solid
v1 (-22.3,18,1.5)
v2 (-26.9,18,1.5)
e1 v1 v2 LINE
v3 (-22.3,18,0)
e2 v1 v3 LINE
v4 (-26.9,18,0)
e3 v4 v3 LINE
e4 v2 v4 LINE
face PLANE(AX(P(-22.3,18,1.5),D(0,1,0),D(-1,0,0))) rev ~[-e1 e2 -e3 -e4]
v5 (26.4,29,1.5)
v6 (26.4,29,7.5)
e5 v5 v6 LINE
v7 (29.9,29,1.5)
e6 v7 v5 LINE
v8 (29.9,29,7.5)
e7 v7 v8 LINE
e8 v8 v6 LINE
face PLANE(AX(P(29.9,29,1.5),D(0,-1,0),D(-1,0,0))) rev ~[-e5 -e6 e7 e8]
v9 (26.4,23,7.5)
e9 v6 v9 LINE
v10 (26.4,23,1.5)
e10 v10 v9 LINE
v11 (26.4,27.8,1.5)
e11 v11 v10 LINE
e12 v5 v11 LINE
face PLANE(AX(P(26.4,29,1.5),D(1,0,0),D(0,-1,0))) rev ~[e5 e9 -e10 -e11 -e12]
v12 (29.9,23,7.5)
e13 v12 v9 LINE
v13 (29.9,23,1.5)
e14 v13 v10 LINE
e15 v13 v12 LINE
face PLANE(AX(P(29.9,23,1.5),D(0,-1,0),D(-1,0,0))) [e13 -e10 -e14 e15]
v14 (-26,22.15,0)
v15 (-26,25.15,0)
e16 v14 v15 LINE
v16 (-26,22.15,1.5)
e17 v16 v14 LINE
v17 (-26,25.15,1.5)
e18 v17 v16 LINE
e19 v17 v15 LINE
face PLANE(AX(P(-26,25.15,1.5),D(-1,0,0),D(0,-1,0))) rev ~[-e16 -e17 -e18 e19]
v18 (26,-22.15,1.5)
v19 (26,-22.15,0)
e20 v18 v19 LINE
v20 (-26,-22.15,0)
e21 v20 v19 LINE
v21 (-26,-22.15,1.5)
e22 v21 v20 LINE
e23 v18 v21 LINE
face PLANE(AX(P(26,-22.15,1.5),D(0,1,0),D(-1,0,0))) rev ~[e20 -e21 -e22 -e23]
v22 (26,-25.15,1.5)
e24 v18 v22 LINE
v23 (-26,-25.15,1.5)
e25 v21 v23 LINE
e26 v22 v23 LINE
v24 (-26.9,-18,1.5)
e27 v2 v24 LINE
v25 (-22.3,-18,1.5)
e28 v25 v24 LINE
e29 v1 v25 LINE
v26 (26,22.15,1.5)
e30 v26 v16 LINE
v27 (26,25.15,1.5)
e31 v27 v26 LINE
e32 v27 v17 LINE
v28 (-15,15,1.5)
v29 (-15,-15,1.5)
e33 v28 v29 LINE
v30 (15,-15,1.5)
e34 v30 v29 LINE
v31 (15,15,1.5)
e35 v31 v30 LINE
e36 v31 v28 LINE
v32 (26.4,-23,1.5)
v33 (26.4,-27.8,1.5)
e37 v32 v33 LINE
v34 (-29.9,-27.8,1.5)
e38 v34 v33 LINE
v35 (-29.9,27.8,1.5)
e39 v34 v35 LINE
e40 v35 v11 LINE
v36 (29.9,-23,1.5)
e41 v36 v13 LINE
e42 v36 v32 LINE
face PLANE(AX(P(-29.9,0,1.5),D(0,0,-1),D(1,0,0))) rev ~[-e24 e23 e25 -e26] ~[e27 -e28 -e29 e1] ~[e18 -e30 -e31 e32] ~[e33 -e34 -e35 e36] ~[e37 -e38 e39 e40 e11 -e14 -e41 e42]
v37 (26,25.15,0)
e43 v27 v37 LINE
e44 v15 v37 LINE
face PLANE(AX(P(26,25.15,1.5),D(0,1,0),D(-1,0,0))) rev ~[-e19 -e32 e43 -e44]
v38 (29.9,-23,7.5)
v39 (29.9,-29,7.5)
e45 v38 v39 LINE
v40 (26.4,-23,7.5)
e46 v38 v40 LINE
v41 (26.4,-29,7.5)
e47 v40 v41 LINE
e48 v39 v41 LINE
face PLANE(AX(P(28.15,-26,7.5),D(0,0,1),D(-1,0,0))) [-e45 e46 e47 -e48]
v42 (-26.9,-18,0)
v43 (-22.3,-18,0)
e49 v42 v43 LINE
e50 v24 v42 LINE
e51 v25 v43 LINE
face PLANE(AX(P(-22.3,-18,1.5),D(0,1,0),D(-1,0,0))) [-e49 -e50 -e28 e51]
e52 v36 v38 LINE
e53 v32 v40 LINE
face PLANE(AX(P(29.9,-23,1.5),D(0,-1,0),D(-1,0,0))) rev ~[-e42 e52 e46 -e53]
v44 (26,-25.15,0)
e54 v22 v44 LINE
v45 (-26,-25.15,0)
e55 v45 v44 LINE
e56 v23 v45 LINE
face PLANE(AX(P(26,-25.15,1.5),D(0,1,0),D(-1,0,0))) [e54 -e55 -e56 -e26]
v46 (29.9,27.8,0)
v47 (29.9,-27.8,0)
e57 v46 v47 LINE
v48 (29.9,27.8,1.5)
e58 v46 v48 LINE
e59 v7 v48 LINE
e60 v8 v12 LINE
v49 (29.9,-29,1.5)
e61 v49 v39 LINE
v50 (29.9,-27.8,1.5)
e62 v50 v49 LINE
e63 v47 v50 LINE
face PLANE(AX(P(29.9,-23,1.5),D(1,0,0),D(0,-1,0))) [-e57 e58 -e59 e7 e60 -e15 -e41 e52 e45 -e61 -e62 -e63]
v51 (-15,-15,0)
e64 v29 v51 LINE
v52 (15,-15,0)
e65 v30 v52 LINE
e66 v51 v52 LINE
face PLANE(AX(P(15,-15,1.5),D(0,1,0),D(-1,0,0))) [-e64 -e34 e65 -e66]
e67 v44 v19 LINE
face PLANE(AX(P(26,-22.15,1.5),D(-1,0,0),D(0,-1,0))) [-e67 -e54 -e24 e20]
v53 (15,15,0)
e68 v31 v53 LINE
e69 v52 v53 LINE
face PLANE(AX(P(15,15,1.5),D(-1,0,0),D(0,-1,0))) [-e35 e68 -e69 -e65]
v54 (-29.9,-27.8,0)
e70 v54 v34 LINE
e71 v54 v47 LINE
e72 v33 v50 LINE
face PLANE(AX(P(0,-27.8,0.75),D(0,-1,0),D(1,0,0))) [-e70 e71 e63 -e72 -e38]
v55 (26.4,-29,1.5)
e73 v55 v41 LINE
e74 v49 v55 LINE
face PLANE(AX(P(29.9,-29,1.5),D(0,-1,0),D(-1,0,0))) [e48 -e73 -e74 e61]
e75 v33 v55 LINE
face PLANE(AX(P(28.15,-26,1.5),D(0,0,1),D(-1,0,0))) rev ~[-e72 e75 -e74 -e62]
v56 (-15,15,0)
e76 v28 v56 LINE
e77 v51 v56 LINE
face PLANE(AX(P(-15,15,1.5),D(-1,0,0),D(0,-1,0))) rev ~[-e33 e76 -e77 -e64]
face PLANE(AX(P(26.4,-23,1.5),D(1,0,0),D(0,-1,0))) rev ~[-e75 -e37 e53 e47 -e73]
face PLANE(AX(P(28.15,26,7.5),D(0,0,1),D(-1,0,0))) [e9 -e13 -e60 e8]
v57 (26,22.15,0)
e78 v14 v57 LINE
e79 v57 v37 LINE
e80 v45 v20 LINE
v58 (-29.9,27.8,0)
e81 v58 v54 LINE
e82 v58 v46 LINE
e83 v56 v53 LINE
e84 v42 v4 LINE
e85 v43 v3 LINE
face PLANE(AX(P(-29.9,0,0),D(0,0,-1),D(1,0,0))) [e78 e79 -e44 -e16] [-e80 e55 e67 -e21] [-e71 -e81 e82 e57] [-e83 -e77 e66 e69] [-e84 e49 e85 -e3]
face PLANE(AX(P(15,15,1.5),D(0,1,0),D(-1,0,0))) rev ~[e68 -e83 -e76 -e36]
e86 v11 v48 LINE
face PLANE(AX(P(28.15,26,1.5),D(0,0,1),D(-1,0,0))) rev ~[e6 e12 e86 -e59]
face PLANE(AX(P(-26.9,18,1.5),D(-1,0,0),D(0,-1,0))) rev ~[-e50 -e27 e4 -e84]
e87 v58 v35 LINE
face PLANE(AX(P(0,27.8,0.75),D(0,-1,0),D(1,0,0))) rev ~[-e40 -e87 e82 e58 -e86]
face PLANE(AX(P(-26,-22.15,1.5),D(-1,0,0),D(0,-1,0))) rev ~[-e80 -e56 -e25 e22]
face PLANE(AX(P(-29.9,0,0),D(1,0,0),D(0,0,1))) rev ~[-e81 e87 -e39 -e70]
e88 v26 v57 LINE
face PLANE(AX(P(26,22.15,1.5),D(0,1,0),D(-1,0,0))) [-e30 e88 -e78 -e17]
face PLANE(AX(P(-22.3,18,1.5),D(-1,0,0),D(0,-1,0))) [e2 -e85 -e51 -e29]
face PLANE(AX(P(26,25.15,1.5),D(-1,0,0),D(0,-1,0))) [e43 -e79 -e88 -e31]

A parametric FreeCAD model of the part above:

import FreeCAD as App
import Part
import Sketcher
Q = App.Units.Quantity


def add_polygon(sketch, points):
    """Adds a closed chain of lines whose ends are joined by coincident constraints."""
    first, n = sketch.GeometryCount, len(points)
    for a, b in zip(points, points[1:] + points[:1]):
        sketch.addGeometry(Part.LineSegment(App.Vector(*a, 0), App.Vector(*b, 0)), False)
    for i in range(n):
        sketch.addConstraint(Sketcher.Constraint("Coincident", first + i, 2, first + (i + 1) % n, 1))

doc = App.newDocument("Part")
body = doc.addObject("PartDesign::Body", "Body")

# Sketch on XZ plane
sketch1 = body.newObject("Sketcher::SketchObject", "Sketch")
sketch1.AttachmentSupport = (doc.getObject("XZ_Plane"), [""])
sketch1.MapMode = "FlatFace"
add_polygon(sketch1, [(-29.9, 1.5), (-29.9, 0), (29.9, 0), (29.9, 1.5)])  # lines 0-3
sketch1.addConstraint([
    Sketcher.Constraint("Vertical", 0),
    Sketcher.Constraint("Horizontal", 1),
    Sketcher.Constraint("Vertical", 2),
    Sketcher.Constraint("Horizontal", 3),
    Sketcher.Constraint("Symmetric", 0, 2, 1, 2, -1, 1),
    Sketcher.Constraint("DistanceX", 1, 1, 1, 2, Q("59.8 mm")),
    Sketcher.Constraint("DistanceY", 0, 2, 0, 1, Q("1.5 mm")),
])
pad1 = body.newObject("PartDesign::Pad", "Pad")
pad1.Profile = sketch1
pad1.Length = 55.6
pad1.Midplane = True

# Sketch on XY plane
sketch2 = body.newObject("Sketcher::SketchObject", "Sketch001")
sketch2.AttachmentSupport = (doc.getObject("XY_Plane"), [""])
sketch2.MapMode = "FlatFace"
sketch2.AttachmentOffset = App.Placement(App.Vector(0, 0, 1.5), App.Rotation())
add_polygon(sketch2, [(26, -25.1), (26, -22.1), (-26, -22.1), (-26, -25.1)])  # lines 0-3
add_polygon(sketch2, [(26, 22.1), (26, 25.1), (-26, 25.1), (-26, 22.1)])  # lines 4-7
add_polygon(sketch2, [(15, -15), (15, 15), (-15, 15), (-15, -15)])  # lines 8-11
add_polygon(sketch2, [(-22.3, -18), (-22.3, 18), (-26.9, 18), (-26.9, -18)])  # lines 12-15
sketch2.addConstraint([
    Sketcher.Constraint("Vertical", 0),
    Sketcher.Constraint("Horizontal", 1),
    Sketcher.Constraint("Vertical", 2),
    Sketcher.Constraint("Horizontal", 3),
    Sketcher.Constraint("Vertical", 4),
    Sketcher.Constraint("Horizontal", 5),
    Sketcher.Constraint("Vertical", 6),
    Sketcher.Constraint("Horizontal", 7),
    Sketcher.Constraint("Vertical", 8),
    Sketcher.Constraint("Horizontal", 9),
    Sketcher.Constraint("Vertical", 10),
    Sketcher.Constraint("Horizontal", 11),
    Sketcher.Constraint("Vertical", 12),
    Sketcher.Constraint("Horizontal", 13),
    Sketcher.Constraint("Vertical", 14),
    Sketcher.Constraint("Horizontal", 15),
    Sketcher.Constraint("Symmetric", 2, 2, 4, 2, -1, 1),
    Sketcher.Constraint("Symmetric", 0, 2, 6, 2, -1, 1),
    Sketcher.Constraint("Symmetric", 8, 2, 10, 2, -1, 1),
    Sketcher.Constraint("Vertical", 3, 2, 4, 2),
    Sketcher.Constraint("Equal", 11, 8),
    Sketcher.Constraint("DistanceX", 1, 2, 1, 1, Q("52 mm")),
    Sketcher.Constraint("DistanceX", 9, 2, 9, 1, Q("30 mm")),
    Sketcher.Constraint("DistanceY", 0, 1, 0, 2, Q("3 mm")),
    Sketcher.Constraint("DistanceY", 12, 1, 12, 2, Q("36 mm")),
    Sketcher.Constraint("DistanceX", 13, 2, 13, 1, Q("4.6 mm")),
    Sketcher.Constraint("DistanceY", -1, 1, 12, 2, Q("18 mm")),
    Sketcher.Constraint("DistanceX", 12, 2, -1, 1, Q("22.3 mm")),
    Sketcher.Constraint("DistanceY", 0, 2, 4, 2, Q("47.3 mm")),
])
pocket1 = body.newObject("PartDesign::Pocket", "Pocket")
pocket1.Profile = sketch2
pocket1.Length = 5

# Sketch on XY plane
sketch3 = body.newObject("Sketcher::SketchObject", "Sketch002")
sketch3.AttachmentSupport = (doc.getObject("XY_Plane"), [""])
sketch3.MapMode = "FlatFace"
sketch3.AttachmentOffset = App.Placement(App.Vector(0, 0, 1.5), App.Rotation())
add_polygon(sketch3, [(29.9, -29), (29.9, -23), (26.4, -23), (26.4, -29)])  # lines 0-3
add_polygon(sketch3, [(29.9, 23), (29.9, 29), (26.4, 29), (26.4, 23)])  # lines 4-7
sketch3.addConstraint([
    Sketcher.Constraint("Vertical", 0),
    Sketcher.Constraint("Horizontal", 1),
    Sketcher.Constraint("Vertical", 2),
    Sketcher.Constraint("Horizontal", 3),
    Sketcher.Constraint("Vertical", 4),
    Sketcher.Constraint("Horizontal", 5),
    Sketcher.Constraint("Vertical", 6),
    Sketcher.Constraint("Horizontal", 7),
    Sketcher.Constraint("Symmetric", 3, 2, 4, 2, -1),
    Sketcher.Constraint("Symmetric", 1, 2, 6, 2, -1),
    Sketcher.Constraint("DistanceY", 0, 1, 0, 2, Q("6 mm")),
    Sketcher.Constraint("DistanceX", 1, 2, 1, 1, Q("3.5 mm")),
    Sketcher.Constraint("DistanceY", 0, 2, -1, 1, Q("23 mm")),
    Sketcher.Constraint("DistanceX", -1, 1, 0, 2, Q("29.9 mm")),
])
pad2 = body.newObject("PartDesign::Pad", "Pad001")
pad2.Profile = sketch3
pad2.Length = 6

# Sketch on YZ plane
sketch4 = body.newObject("Sketcher::SketchObject", "Sketch003")
sketch4.AttachmentSupport = (doc.getObject("YZ_Plane"), [""])
sketch4.MapMode = "FlatFace"
sketch4.AttachmentOffset = App.Placement(App.Vector(0, 0, -26), App.Rotation())
sketch4.addGeometry([
    Part.Circle(App.Vector(25.5, -4.5, 0), App.Vector(0, 0, 1), 1.8),
    Part.Circle(App.Vector(-25.5, -4.5, 0), App.Vector(0, 0, 1), 1.8),
], False)
sketch4.addConstraint([
    Sketcher.Constraint("Equal", 0, 1),
    Sketcher.Constraint("Symmetric", 0, 3, 1, 3, -2),
    Sketcher.Constraint("Diameter", 0, Q("3.5 mm")),
    Sketcher.Constraint("DistanceX", 1, 3, 0, 3, Q("51 mm")),
    Sketcher.Constraint("DistanceY", 0, 3, -1, 1, Q("4.5 mm")),
])
pocket2 = body.newObject("PartDesign::Pocket", "Pocket001")
pocket2.Profile = sketch4
pocket2.Length = 5

doc.recompute()
